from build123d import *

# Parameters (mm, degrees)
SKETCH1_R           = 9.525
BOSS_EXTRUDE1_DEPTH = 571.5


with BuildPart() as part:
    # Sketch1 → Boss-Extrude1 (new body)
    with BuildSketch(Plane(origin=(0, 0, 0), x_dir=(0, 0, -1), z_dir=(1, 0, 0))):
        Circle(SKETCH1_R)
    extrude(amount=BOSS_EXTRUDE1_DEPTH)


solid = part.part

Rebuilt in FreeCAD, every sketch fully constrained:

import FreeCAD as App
import Part
import Sketcher
from FreeCAD import Vector
Q = App.Units.Quantity

doc = App.newDocument("Part")
params = doc.addObject("Spreadsheet::Sheet", "Params")
for row, (alias, value) in enumerate([
    ("sketch1_diameter", "0.75 in"),
    ("pad1_length", "22.5 in"),
], start=1):
    params.set(f"A{row}", alias)
    params.set(f"B{row}", "=" + value)
    params.setAlias(f"B{row}", alias)

body = doc.addObject("PartDesign::Body", "Body")

# Sketch on YZ plane
sketch1 = body.newObject("Sketcher::SketchObject", "Sketch")
sketch1.AttachmentSupport = (doc.getObject("YZ_Plane"), [""])
sketch1.MapMode = "FlatFace"
sketch1.addGeometry(Part.Circle(Vector(0, 0, 0), Vector(0, 0, 1), 9.525), False)
sketch1.addConstraint(Sketcher.Constraint("Coincident", 0, 3, -1, 1))
sketch1.addConstraint(Sketcher.Constraint("Diameter", 0, Q("0.75 in")))
sketch1.setExpression("Constraints[1]", "Params.sketch1_diameter")
pad1 = body.newObject("PartDesign::Pad", "Pad")
pad1.Profile = sketch1
pad1.setExpression("Length", "Params.pad1_length")

doc.recompute()
